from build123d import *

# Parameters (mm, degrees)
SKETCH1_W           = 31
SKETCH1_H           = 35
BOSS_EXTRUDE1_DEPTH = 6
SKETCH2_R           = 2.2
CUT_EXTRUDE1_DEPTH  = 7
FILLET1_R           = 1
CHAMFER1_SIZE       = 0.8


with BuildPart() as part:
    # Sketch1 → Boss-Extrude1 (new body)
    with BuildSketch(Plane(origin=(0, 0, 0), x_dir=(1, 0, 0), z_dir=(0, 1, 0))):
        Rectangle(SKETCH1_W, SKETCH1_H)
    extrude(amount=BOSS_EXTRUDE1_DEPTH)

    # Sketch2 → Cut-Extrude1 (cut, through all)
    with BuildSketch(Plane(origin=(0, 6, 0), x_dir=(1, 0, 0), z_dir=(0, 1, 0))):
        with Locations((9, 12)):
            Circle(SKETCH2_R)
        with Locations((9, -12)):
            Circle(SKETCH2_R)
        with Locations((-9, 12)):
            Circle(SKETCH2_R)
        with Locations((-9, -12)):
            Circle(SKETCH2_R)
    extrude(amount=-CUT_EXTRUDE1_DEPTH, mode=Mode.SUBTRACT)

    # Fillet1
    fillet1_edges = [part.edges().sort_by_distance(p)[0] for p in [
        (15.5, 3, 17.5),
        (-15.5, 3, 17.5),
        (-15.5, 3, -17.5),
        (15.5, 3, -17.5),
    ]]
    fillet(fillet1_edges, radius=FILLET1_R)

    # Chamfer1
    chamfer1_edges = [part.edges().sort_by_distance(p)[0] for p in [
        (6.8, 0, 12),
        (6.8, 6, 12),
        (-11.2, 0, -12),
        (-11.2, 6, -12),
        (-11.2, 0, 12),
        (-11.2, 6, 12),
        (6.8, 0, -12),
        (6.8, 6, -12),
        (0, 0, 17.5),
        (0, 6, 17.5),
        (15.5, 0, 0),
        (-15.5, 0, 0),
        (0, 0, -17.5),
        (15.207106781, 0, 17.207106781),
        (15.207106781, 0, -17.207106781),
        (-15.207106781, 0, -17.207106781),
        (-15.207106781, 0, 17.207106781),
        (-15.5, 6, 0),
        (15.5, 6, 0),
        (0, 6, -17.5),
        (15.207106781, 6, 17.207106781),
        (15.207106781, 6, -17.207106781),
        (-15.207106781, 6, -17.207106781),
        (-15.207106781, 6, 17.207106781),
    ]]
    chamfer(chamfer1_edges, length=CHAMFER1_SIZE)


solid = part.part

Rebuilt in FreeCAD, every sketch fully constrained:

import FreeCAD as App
import Part
import Sketcher

V = App.Vector


def edges_at(feature, points):
    """Names of the edges that pass closest to the given points."""
    edges = feature.Shape.Edges
    near = lambda p: min(range(len(edges)), key=lambda i: edges[i].distToShape(Part.Vertex(*p))[0])
    return sorted({f"Edge{near(p) + 1}" for p in points})


def add_polygon(sketch, points):
    """Adds a closed chain of lines whose ends are joined by coincident constraints."""
    first, n = sketch.GeometryCount, len(points)
    for a, b in zip(points, points[1:] + points[:1]):
        sketch.addGeometry(Part.LineSegment(App.Vector(*a, 0), App.Vector(*b, 0)), False)
    for i in range(n):
        sketch.addConstraint(Sketcher.Constraint("Coincident", first + i, 2, first + (i + 1) % n, 1))

doc = App.newDocument("Part")
body = doc.addObject("PartDesign::Body", "Body")

sketch1 = doc.addObject("Sketcher::SketchObject", "Sketch")
body.addObject(sketch1)
sketch1.AttachmentSupport = (doc.XZ_Plane, [""])
sketch1.MapMode = "FlatFace"
add_polygon(sketch1, [(-15.5, -17.5), (-15.5, 17.5), (15.5, 17.5), (15.5, -17.5)])
sketch1.addConstraint([
    Sketcher.Constraint("Vertical", 0),
    Sketcher.Constraint("Horizontal", 1),
    Sketcher.Constraint("Vertical", 2),
    Sketcher.Constraint("Horizontal", 3),
    Sketcher.Constraint("Symmetric", 0, 2, 2, 2, -1, 1),
    Sketcher.Constraint("DistanceX", 1, 1, 1, 2, 31.0),
    Sketcher.Constraint("DistanceY", 0, 1, 0, 2, 35.0),
])
pad1 = doc.addObject("PartDesign::Pad", "Pad")
body.addObject(pad1)
pad1.Profile = sketch1
pad1.Length = 6
pad1.Reversed = True

sketch2 = doc.addObject("Sketcher::SketchObject", "Sketch001")
body.addObject(sketch2)
sketch2.AttachmentSupport = (doc.XZ_Plane, [""])
sketch2.MapMode = "FlatFace"
sketch2.AttachmentOffset = App.Placement(V(0, 0, -6), App.Rotation())
sketch2.addGeometry([
    Part.Circle(V(9, -12, 0), V(0, 0, 1), 2.2),
    Part.Circle(V(9, 12, 0), V(0, 0, 1), 2.2),
    Part.Circle(V(-9, -12, 0), V(0, 0, 1), 2.2),
    Part.Circle(V(-9, 12, 0), V(0, 0, 1), 2.2),
], False)
sketch2.addConstraint([
    Sketcher.Constraint("Equal", 0, 1),
    Sketcher.Constraint("Equal", 1, 2),
    Sketcher.Constraint("Equal", 2, 3),
    Sketcher.Constraint("Symmetric", 1, 3, 2, 3, -1, 1),
    Sketcher.Constraint("Symmetric", 0, 3, 3, 3, -1, 1),
    Sketcher.Constraint("Symmetric", 0, 3, 2, 3, -2),
    Sketcher.Constraint("Diameter", 0, 4.4),
    Sketcher.Constraint("DistanceX", -1, 1, 0, 3, 9.0),
    Sketcher.Constraint("DistanceY", 0, 3, -1, 1, 12.0),
])
pocket1 = doc.addObject("PartDesign::Pocket", "Pocket")
body.addObject(pocket1)
pocket1.Profile = sketch2
pocket1.Type = "ThroughAll"
pocket1.Reversed = True
doc.recompute()

fillet = doc.addObject("PartDesign::Fillet", "Fillet")
body.addObject(fillet)
fillet.Base = (pocket1, edges_at(pocket1, [
    (15.5, 3, 17.5),
    (-15.5, 3, 17.5),
    (-15.5, 3, -17.5),
    (15.5, 3, -17.5),
]))
fillet.Radius = 1
doc.recompute()

chamfer = doc.addObject("PartDesign::Chamfer", "Chamfer")
body.addObject(chamfer)
chamfer.Base = (fillet, edges_at(fillet, [
    (6.8, 0, 12),
    (6.8, 6, 12),
    (-11.2, 0, -12),
    (-11.2, 6, -12),
    (-11.2, 0, 12),
    (-11.2, 6, 12),
    (6.8, 0, -12),
    (6.8, 6, -12),
    (0, 0, 17.5),
    (0, 6, 17.5),
    (15.5, 0, 0),
    (-15.5, 0, 0),
    (0, 0, -17.5),
    (15.207, 0, 17.207),
    (15.207, 0, -17.207),
    (-15.207, 0, -17.207),
    (-15.207, 0, 17.207),
    (-15.5, 6, 0),
    (15.5, 6, 0),
    (0, 6, -17.5),
    (15.207, 6, 17.207),
    (15.207, 6, -17.207),
    (-15.207, 6, -17.207),
    (-15.207, 6, 17.207),
]))
chamfer.Size = 0.8

doc.recompute()
